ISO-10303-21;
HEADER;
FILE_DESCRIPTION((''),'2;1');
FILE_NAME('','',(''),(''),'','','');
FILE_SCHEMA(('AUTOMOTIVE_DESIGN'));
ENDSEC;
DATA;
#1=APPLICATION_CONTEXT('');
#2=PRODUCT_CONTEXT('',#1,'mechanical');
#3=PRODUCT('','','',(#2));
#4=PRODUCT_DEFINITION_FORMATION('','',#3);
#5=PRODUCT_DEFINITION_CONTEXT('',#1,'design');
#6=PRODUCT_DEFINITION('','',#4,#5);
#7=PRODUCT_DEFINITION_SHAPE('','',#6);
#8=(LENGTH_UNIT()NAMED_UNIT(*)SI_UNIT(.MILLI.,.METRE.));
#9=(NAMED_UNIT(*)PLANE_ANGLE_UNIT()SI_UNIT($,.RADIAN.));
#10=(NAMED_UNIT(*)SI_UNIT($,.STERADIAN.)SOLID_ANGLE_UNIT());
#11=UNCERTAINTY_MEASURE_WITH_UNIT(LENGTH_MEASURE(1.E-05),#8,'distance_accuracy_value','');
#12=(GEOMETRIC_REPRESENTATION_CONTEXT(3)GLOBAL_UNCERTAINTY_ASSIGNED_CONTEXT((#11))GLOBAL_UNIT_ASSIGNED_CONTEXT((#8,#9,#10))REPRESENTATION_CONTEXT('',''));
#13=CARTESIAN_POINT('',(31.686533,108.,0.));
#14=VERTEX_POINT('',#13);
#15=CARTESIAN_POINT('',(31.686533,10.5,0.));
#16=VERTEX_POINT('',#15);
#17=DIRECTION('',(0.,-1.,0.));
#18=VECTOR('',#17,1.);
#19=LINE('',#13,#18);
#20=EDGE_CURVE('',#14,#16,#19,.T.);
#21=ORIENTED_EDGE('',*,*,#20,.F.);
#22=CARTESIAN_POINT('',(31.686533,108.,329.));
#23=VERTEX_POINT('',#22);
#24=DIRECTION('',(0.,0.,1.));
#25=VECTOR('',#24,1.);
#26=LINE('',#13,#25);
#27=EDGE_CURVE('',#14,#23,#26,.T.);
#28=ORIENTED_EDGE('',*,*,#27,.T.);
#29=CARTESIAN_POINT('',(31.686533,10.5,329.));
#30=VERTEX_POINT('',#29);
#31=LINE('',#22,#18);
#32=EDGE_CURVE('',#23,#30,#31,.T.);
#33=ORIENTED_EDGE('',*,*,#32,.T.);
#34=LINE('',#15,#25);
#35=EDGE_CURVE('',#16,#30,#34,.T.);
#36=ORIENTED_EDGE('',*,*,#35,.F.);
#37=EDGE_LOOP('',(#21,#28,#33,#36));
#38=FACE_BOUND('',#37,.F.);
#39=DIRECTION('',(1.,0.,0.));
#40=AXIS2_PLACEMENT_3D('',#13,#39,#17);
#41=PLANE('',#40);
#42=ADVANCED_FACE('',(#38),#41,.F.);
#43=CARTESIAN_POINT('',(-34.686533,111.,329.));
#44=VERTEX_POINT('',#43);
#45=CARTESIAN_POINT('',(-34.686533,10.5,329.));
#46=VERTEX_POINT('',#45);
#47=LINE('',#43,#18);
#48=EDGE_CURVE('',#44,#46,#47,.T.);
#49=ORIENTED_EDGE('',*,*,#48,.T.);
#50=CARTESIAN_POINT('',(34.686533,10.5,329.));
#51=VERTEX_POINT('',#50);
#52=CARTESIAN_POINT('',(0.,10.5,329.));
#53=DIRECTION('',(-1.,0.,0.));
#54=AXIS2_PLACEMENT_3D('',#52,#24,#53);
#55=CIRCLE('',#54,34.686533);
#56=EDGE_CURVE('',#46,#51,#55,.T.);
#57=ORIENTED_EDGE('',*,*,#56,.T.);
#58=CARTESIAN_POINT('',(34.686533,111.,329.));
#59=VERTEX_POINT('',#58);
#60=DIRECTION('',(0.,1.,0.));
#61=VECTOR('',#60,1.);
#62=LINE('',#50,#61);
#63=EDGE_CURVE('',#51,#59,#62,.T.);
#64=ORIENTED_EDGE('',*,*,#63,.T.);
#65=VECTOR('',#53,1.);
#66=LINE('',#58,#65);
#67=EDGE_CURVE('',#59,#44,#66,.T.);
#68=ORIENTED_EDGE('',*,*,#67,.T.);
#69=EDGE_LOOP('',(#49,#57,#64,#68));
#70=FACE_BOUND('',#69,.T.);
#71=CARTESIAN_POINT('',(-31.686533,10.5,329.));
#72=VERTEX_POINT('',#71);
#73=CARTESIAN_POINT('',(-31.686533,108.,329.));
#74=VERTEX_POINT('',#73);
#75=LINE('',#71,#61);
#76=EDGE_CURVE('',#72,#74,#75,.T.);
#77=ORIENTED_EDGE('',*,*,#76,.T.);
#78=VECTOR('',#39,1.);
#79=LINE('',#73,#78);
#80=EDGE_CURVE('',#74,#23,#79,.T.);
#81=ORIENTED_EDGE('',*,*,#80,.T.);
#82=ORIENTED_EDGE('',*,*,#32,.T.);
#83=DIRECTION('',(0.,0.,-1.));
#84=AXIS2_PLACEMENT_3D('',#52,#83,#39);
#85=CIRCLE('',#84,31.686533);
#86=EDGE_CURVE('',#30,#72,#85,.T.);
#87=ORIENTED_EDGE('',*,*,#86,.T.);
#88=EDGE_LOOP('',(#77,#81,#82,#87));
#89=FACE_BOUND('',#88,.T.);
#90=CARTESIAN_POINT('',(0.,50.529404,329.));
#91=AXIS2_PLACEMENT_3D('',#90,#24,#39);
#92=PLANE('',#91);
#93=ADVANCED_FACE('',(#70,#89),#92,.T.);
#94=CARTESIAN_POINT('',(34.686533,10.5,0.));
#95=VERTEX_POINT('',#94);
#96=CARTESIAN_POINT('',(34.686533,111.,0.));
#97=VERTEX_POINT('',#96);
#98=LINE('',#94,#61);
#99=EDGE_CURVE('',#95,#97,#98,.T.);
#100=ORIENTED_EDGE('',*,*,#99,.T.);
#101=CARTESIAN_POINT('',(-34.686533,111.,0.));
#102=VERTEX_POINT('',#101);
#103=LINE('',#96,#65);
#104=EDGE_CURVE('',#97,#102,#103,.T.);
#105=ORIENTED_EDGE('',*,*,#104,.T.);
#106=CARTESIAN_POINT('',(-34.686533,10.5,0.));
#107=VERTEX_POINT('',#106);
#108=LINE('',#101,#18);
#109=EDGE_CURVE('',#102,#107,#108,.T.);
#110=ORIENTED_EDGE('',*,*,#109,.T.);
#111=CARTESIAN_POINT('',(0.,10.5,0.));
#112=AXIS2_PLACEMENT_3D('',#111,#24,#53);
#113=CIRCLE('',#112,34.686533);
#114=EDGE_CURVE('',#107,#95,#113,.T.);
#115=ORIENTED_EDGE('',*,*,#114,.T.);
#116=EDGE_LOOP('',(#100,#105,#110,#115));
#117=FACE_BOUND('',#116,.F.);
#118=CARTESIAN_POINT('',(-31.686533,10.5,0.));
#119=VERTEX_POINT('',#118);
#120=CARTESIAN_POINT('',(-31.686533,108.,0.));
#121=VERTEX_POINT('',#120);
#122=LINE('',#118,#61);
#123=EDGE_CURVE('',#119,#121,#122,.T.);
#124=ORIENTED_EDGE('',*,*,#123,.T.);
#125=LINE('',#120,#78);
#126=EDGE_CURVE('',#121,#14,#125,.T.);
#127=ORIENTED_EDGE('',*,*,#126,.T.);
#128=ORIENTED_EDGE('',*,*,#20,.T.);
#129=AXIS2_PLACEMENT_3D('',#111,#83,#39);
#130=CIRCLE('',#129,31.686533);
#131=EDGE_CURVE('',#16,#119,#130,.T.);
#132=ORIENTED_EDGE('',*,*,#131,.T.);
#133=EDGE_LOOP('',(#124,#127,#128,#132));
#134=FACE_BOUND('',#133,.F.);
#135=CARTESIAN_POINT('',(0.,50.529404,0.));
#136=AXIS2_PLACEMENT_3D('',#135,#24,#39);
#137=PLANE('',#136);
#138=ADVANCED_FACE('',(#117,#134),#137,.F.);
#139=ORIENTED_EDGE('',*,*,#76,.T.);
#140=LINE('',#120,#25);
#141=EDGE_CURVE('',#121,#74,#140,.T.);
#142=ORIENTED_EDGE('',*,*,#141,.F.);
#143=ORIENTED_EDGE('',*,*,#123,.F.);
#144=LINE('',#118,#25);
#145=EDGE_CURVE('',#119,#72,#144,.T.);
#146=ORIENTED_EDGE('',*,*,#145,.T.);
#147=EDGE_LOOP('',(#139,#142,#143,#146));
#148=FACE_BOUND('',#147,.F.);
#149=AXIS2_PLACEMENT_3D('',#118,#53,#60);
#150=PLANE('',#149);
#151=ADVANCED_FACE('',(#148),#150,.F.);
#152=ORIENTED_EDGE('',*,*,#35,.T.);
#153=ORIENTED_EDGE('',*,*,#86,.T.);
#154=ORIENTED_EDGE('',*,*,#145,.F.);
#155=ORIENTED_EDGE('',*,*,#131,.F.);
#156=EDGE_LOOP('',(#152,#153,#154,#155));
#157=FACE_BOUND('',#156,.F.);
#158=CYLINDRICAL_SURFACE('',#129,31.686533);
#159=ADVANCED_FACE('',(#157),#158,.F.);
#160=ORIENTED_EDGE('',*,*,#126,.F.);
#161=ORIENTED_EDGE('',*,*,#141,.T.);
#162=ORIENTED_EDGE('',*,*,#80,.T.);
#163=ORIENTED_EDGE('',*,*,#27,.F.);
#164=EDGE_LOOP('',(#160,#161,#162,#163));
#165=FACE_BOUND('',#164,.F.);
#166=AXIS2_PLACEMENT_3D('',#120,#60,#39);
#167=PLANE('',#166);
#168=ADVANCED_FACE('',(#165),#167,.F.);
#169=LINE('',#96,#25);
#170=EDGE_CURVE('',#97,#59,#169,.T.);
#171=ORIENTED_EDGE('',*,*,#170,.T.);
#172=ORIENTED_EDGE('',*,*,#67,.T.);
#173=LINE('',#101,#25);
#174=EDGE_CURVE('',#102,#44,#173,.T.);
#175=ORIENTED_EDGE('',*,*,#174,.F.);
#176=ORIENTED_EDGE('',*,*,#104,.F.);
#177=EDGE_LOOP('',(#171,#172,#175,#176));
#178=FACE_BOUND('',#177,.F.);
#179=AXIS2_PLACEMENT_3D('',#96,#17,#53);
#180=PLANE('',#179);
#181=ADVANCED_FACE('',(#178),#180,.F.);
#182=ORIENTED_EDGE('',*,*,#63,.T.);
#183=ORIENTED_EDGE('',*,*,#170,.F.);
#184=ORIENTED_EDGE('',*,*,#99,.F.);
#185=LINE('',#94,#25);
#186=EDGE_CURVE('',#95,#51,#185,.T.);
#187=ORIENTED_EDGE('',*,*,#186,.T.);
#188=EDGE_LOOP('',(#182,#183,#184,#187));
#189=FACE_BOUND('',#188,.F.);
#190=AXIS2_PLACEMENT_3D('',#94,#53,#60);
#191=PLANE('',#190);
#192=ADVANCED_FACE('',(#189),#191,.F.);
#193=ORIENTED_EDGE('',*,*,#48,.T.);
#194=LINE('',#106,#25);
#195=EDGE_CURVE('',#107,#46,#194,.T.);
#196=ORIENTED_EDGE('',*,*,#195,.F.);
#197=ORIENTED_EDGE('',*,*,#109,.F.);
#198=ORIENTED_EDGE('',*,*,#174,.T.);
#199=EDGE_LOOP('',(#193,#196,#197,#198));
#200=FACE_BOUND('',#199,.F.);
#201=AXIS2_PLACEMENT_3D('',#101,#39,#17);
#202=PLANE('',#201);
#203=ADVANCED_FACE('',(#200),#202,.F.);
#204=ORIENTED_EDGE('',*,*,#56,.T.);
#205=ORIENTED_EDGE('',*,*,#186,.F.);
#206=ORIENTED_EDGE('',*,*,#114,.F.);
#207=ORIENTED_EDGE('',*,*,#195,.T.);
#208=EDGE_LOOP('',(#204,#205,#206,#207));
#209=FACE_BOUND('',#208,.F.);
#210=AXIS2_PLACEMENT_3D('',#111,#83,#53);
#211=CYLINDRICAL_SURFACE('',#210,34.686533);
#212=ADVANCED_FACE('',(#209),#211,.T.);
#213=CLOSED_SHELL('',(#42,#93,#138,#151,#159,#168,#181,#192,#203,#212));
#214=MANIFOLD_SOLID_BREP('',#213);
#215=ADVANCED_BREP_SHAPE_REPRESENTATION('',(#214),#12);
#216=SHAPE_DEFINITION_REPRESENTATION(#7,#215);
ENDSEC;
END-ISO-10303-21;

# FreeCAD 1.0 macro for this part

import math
import FreeCAD as App
import Part
import Sketcher
from FreeCAD import Vector
Q = App.Units.Quantity

doc = App.newDocument("Part")
params = doc.addObject("Spreadsheet::Sheet", "Params")
for row, (alias, value) in enumerate([
    ("sketch1_height", "100.5 mm"),
    ("sketch1_height2", "97.5 mm"),
    ("pad1_length", "329 mm"),
], start=1):
    params.set(f"A{row}", alias)
    params.set(f"B{row}", "=" + value)
    params.setAlias(f"B{row}", alias)

body = doc.addObject("PartDesign::Body", "Body")

# Sketch on XY plane
sketch1 = body.newObject("Sketcher::SketchObject", "Sketch")
sketch1.AttachmentSupport = (doc.getObject("XY_Plane"), [""])
sketch1.MapMode = "FlatFace"
sketch1.addGeometry(Part.LineSegment(Vector(35, 111, 0), Vector(-35, 111, 0)), False)
sketch1.addGeometry(Part.LineSegment(Vector(-35, 111, 0), Vector(-35, 10, 0)), False)
sketch1.addGeometry(Part.ArcOfCircle(Part.Circle(Vector(0, 10, 0), Vector(0, 0, 1), 35), math.radians(180), math.radians(360)), False)
sketch1.addGeometry(Part.LineSegment(Vector(35, 10, 0), Vector(35, 111, 0)), False)
sketch1.addGeometry(Part.ArcOfCircle(Part.Circle(Vector(0, 10, 0), Vector(0, 0, 1), 32), math.radians(180), math.radians(360)), False)
sketch1.addGeometry(Part.LineSegment(Vector(-32, 10, 0), Vector(-32, 108, 0)), False)
sketch1.addGeometry(Part.LineSegment(Vector(-32, 108, 0), Vector(32, 108, 0)), False)
sketch1.addGeometry(Part.LineSegment(Vector(32, 108, 0), Vector(32, 10, 0)), False)
sketch1.addConstraint(Sketcher.Constraint("Coincident", 0, 2, 1, 1))
sketch1.addConstraint(Sketcher.Constraint("Tangent", 1, 2, 2, 1))
sketch1.addConstraint(Sketcher.Constraint("Tangent", 2, 2, 3, 1))
sketch1.addConstraint(Sketcher.Constraint("Coincident", 3, 2, 0, 1))
sketch1.addConstraint(Sketcher.Constraint("Tangent", 4, 1, 5, 1))
sketch1.addConstraint(Sketcher.Constraint("Coincident", 5, 2, 6, 1))
sketch1.addConstraint(Sketcher.Constraint("Coincident", 6, 2, 7, 1))
sketch1.addConstraint(Sketcher.Constraint("Tangent", 7, 2, 4, 2))
sketch1.addConstraint(Sketcher.Constraint("Horizontal", 0))
sketch1.addConstraint(Sketcher.Constraint("Vertical", 1))
sketch1.addConstraint(Sketcher.Constraint("Vertical", 3))
sketch1.addConstraint(Sketcher.Constraint("Vertical", 5))
sketch1.addConstraint(Sketcher.Constraint("Horizontal", 6))
sketch1.addConstraint(Sketcher.Constraint("Vertical", 7))
sketch1.addConstraint(Sketcher.Constraint("Coincident", 4, 3, 2, 3))
sketch1.addConstraint(Sketcher.Constraint("PointOnObject", 2, 3, -2))
sketch1.addConstraint(Sketcher.Constraint("DistanceY", 1, 2, 1, 1, Q("100.5 mm")))
sketch1.addConstraint(Sketcher.Constraint("DistanceY", 5, 1, 5, 2, Q("97.5 mm")))
sketch1.addConstraint(Sketcher.Constraint("DistanceY", -1, 1, 0, 2, Q("111 mm")))
sketch1.addConstraint(Sketcher.Constraint("DistanceX", 1, 2, 4, 1, Q("3 mm")))
sketch1.addConstraint(Sketcher.Constraint("Radius", 2, Q("34.686533 mm")))
sketch1.setExpression("Constraints[16]", "Params.sketch1_height")
sketch1.setExpression("Constraints[17]", "Params.sketch1_height2")
pad1 = body.newObject("PartDesign::Pad", "Pad")
pad1.Profile = sketch1
pad1.setExpression("Length", "Params.pad1_length")

doc.recompute()
